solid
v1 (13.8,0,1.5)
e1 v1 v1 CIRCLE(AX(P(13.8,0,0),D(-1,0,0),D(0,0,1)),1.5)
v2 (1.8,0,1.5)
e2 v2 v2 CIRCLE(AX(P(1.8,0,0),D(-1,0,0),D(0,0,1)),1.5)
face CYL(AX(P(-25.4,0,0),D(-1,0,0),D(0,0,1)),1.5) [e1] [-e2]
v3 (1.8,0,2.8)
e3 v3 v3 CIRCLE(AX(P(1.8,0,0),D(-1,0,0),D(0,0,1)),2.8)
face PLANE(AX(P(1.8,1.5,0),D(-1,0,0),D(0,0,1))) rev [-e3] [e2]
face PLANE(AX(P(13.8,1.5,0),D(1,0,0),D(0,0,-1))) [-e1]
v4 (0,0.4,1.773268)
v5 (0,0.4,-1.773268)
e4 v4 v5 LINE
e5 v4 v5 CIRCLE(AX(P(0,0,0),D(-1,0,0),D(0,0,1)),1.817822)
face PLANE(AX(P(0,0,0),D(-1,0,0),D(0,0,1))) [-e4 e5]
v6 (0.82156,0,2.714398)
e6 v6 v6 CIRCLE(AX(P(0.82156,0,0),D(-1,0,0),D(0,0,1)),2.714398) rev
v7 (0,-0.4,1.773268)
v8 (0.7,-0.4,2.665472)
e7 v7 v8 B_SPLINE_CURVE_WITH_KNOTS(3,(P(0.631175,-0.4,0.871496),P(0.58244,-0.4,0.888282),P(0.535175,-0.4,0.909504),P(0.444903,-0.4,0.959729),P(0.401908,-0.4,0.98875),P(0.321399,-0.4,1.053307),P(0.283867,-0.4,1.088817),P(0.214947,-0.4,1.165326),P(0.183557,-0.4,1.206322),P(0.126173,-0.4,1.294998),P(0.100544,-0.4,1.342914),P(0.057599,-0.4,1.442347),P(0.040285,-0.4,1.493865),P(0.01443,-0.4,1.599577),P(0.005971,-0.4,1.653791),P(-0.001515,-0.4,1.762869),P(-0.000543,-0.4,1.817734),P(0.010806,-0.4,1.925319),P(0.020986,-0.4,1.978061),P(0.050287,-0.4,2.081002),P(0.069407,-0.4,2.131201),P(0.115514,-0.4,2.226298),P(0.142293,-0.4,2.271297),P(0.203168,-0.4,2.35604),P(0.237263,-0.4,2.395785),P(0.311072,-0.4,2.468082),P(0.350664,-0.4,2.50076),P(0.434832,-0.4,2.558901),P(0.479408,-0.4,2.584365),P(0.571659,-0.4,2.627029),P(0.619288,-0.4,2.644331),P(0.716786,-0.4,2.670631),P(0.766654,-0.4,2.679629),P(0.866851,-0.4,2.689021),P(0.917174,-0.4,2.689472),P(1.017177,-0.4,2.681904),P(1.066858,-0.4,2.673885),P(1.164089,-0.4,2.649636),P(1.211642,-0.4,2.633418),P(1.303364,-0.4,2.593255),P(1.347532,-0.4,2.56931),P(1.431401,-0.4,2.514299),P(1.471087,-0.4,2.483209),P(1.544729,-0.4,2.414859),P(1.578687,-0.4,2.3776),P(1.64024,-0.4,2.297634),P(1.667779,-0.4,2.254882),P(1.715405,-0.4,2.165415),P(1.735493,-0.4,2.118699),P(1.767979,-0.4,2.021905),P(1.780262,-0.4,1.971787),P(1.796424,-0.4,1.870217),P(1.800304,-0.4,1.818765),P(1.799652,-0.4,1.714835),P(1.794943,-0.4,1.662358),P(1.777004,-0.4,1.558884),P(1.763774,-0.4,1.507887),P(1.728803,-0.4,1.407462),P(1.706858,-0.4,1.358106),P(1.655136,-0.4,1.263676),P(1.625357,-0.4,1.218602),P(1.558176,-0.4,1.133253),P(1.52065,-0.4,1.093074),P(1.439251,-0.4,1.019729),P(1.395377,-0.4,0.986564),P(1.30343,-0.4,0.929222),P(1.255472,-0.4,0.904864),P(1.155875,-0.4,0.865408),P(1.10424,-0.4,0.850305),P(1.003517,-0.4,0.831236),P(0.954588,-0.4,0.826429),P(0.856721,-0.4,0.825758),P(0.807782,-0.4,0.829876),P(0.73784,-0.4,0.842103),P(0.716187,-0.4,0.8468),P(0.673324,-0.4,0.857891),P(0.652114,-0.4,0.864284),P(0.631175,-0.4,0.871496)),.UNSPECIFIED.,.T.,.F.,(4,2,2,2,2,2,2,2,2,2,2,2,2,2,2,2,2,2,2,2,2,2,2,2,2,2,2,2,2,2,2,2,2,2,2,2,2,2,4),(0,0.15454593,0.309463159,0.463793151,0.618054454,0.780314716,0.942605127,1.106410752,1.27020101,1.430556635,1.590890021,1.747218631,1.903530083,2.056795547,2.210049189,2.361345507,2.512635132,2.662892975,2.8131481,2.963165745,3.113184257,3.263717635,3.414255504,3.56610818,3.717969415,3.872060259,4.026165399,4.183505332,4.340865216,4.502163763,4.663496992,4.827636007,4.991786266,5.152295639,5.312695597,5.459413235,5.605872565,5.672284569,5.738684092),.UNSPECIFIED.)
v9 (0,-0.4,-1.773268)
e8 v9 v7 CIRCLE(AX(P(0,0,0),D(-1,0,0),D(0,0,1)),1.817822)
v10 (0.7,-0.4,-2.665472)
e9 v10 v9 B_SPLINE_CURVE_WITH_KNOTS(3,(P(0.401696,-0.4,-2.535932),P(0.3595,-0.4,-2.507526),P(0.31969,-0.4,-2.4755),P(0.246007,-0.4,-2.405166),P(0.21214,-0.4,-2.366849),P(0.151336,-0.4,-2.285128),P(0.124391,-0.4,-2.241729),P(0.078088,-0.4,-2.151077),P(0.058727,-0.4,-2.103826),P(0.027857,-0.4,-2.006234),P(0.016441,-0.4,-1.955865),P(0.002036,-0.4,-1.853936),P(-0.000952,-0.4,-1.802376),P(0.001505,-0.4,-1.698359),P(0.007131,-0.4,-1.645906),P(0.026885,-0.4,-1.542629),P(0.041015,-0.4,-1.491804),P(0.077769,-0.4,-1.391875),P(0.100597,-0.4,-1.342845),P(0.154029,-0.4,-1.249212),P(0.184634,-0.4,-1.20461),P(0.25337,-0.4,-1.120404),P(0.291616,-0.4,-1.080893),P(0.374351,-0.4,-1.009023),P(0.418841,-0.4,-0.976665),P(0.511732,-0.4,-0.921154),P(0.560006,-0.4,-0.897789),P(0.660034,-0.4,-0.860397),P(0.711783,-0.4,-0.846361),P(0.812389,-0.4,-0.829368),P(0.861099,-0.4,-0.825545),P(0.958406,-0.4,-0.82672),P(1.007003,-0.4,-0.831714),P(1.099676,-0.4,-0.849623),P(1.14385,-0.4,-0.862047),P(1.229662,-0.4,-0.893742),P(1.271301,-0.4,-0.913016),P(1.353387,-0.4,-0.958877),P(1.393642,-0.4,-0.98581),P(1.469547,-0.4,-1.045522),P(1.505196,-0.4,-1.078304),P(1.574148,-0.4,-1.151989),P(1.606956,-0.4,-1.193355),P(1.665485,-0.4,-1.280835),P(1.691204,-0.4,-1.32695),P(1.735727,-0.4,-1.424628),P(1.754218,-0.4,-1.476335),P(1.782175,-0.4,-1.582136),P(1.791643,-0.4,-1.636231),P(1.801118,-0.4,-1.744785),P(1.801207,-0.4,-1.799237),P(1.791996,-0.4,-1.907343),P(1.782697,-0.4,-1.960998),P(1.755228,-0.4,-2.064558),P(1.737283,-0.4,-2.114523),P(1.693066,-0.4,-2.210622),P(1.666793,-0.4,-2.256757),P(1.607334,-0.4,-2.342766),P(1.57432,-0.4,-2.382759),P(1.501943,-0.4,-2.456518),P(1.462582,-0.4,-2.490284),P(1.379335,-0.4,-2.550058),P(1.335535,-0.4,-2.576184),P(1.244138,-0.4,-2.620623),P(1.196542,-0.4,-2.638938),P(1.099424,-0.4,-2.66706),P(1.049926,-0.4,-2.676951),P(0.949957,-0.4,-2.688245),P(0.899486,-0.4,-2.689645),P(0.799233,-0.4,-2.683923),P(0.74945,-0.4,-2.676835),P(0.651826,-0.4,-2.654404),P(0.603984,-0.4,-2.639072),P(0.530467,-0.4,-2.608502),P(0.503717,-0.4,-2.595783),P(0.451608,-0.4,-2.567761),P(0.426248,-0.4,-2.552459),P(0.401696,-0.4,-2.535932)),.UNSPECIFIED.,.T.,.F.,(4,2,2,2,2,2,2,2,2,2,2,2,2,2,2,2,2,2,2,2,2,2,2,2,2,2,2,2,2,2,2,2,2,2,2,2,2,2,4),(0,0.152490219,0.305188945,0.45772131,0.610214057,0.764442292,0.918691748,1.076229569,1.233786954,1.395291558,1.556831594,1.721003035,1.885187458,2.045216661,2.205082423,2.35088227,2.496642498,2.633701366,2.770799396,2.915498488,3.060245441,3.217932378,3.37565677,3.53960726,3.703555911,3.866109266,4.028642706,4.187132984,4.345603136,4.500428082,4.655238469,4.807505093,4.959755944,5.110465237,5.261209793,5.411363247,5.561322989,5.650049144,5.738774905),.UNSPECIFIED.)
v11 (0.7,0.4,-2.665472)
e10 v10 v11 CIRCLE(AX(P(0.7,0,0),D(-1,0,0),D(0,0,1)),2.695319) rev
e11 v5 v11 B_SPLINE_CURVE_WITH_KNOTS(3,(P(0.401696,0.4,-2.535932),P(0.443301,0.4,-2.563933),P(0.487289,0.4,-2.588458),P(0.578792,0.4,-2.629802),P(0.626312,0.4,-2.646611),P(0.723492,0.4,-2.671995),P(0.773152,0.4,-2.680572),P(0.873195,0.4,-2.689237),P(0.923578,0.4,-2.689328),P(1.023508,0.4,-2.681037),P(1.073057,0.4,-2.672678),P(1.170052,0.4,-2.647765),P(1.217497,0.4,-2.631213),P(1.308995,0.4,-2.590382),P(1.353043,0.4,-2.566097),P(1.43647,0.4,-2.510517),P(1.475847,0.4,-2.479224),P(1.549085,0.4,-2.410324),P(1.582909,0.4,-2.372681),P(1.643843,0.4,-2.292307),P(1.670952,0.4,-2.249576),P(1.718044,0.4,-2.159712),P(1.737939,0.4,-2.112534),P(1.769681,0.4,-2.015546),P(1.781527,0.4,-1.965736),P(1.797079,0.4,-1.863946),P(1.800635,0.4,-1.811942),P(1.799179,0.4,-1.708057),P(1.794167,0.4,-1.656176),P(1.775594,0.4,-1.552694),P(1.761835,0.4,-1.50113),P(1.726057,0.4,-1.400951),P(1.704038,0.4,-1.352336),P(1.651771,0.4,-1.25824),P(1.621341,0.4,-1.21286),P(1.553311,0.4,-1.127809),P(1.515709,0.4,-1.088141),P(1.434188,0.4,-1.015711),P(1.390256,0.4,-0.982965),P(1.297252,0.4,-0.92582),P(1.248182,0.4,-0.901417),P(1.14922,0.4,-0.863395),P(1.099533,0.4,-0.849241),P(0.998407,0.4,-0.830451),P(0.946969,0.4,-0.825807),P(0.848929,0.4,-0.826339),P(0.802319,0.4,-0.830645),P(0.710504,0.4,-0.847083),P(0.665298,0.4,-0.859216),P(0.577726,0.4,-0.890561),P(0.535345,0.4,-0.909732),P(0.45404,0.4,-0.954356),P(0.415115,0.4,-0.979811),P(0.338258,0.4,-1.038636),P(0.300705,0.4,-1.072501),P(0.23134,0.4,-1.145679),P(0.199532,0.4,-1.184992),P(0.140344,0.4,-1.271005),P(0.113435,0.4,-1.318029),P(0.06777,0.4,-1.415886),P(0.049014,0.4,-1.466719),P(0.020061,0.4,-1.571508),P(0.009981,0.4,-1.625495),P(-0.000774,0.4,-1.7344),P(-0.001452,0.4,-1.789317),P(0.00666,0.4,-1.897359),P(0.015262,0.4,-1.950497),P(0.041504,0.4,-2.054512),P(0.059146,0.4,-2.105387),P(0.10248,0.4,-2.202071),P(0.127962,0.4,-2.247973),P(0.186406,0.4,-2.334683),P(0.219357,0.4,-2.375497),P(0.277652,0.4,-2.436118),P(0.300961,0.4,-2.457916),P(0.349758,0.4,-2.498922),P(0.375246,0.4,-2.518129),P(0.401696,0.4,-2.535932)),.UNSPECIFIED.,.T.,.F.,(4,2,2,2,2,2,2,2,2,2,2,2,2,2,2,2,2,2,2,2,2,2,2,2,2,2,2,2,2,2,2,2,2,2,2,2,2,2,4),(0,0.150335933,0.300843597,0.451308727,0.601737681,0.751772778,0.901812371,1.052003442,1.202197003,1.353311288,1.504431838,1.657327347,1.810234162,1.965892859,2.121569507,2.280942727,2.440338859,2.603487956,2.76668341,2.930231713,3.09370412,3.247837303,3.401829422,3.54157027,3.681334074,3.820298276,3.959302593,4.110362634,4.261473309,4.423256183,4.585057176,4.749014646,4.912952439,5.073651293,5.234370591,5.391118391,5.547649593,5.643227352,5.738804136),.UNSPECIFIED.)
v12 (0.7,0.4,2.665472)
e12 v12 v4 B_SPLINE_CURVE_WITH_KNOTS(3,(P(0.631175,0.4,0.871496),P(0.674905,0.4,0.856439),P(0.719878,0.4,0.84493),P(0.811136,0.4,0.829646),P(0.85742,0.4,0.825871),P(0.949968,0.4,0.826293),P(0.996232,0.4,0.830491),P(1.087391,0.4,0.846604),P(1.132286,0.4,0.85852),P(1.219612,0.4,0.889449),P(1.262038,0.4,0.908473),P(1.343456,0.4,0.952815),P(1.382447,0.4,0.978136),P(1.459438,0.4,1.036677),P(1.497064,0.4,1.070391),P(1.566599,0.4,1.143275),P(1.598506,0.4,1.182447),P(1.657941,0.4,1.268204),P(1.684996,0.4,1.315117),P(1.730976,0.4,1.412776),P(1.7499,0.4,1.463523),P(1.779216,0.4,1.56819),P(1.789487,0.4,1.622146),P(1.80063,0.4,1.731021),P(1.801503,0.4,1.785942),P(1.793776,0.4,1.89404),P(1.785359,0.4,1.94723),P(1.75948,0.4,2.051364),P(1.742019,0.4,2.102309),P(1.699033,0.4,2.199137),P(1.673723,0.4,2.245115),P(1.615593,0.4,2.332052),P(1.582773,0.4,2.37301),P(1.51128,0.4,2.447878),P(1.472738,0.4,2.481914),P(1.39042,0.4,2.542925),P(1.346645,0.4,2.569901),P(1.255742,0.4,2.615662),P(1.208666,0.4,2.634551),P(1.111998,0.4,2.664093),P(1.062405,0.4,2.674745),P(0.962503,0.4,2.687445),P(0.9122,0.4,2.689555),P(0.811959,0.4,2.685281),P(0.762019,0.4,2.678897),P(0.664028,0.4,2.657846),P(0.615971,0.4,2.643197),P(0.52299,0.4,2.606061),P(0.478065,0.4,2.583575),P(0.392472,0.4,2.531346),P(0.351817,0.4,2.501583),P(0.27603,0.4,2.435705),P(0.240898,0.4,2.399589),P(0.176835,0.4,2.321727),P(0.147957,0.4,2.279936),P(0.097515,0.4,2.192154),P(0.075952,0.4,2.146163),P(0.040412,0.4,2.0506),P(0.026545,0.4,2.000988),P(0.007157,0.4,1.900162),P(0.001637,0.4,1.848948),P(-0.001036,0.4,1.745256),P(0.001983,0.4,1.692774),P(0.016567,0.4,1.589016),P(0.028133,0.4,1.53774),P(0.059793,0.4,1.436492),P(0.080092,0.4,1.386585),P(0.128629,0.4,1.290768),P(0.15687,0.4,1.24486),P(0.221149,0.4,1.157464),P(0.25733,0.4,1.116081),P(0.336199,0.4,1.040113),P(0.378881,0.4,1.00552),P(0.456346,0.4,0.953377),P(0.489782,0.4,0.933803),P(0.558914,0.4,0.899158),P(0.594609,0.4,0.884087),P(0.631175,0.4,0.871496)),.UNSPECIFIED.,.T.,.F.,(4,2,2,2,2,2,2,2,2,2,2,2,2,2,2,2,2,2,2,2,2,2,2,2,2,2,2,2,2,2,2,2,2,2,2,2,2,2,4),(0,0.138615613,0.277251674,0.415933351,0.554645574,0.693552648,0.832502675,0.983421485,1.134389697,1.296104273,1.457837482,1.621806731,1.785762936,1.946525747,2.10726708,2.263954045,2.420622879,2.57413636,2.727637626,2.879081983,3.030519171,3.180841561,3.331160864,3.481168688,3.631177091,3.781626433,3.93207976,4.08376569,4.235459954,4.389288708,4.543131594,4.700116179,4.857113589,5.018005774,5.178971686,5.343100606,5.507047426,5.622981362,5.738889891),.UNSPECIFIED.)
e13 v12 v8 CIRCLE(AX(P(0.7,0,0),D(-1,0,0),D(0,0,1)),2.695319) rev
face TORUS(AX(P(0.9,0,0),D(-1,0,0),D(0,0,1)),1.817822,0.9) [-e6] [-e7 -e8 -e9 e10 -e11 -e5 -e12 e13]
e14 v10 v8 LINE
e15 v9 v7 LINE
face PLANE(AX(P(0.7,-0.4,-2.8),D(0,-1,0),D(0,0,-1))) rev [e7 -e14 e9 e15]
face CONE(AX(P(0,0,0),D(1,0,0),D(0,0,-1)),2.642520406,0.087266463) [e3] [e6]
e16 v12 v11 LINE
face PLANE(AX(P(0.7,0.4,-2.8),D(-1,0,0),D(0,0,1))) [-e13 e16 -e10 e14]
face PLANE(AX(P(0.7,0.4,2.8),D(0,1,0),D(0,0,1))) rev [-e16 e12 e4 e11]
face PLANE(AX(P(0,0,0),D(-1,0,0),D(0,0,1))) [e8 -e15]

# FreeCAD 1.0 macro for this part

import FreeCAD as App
import Part
import Sketcher

V = App.Vector
Q = App.Units.Quantity


def edges_at(feature, points):
    """Names of the edges that pass closest to the given points."""
    edges = feature.Shape.Edges
    near = lambda p: min(range(len(edges)), key=lambda i: edges[i].distToShape(Part.Vertex(*p))[0])
    return sorted({f"Edge{near(p) + 1}" for p in points})

doc = App.newDocument("Part")
body = doc.addObject("PartDesign::Body", "Body")

sketch1 = body.newObject("Sketcher::SketchObject", "Sketch")
sketch1.AttachmentSupport = (doc.getObject("XY_Plane"), [""])
sketch1.MapMode = "FlatFace"
sketch1.addGeometry([
    Part.LineSegment(V(1.8, 1.5, 0), V(1.8, 2.8, 0)),
    Part.LineSegment(V(1.8, 2.8, 0), V(0, 2.6, 0)),
    Part.LineSegment(V(0, 2.6, 0), V(0, 0, 0)),
    Part.LineSegment(V(0, 0, 0), V(13.8, 0, 0)),
    Part.LineSegment(V(13.8, 0, 0), V(13.8, 1.5, 0)),
    Part.LineSegment(V(13.8, 1.5, 0), V(1.8, 1.5, 0)),
], False)
sketch1.addConstraint([
    Sketcher.Constraint("Coincident", 0, 2, 1, 1),
    Sketcher.Constraint("Coincident", 1, 2, 2, 1),
    Sketcher.Constraint("Coincident", 2, 2, 3, 1),
    Sketcher.Constraint("Coincident", 3, 2, 4, 1),
    Sketcher.Constraint("Coincident", 4, 2, 5, 1),
    Sketcher.Constraint("Coincident", 5, 2, 0, 1),
    Sketcher.Constraint("Vertical", 0),
    Sketcher.Constraint("Vertical", 2),
    Sketcher.Constraint("Horizontal", 3),
    Sketcher.Constraint("Vertical", 4),
    Sketcher.Constraint("Horizontal", 5),
    Sketcher.Constraint("Coincident", 2, 2, -1, 1),
    Sketcher.Constraint("DistanceX", 5, 2, 5, 1, Q("12 mm")),
    Sketcher.Constraint("Angle", 1, Q("-175 deg")),
    Sketcher.Constraint("DistanceX", 3, 1, 3, 2, Q("13.8 mm")),
    Sketcher.Constraint("DistanceY", 0, 1, 0, 2, Q("1.3 mm")),
    Sketcher.Constraint("DistanceY", 4, 1, 4, 2, Q("1.5 mm")),
])
revolution = body.newObject("PartDesign::Revolution", "Revolution")
revolution.Profile = sketch1
revolution.ReferenceAxis = (sketch1, ["H_Axis"])
revolution.Angle = 360
doc.recompute()

fillet = body.newObject("PartDesign::Fillet", "Fillet")
fillet.Base = (revolution, edges_at(revolution, [(0, 0, -2.643)]))
fillet.Radius = 0.9

sketch2 = body.newObject("Sketcher::SketchObject", "Sketch001")
sketch2.AttachmentSupport = (doc.getObject("YZ_Plane"), [""])
sketch2.MapMode = "FlatFace"
sketch2.addGeometry([
    Part.LineSegment(V(0.4, 2.8, 0), V(-0.4, 2.8, 0)),
    Part.LineSegment(V(-0.4, 2.8, 0), V(-0.4, -2.8, 0)),
    Part.LineSegment(V(-0.4, -2.8, 0), V(0.4, -2.8, 0)),
    Part.LineSegment(V(0.4, -2.8, 0), V(0.4, 2.8, 0)),
], False)
sketch2.addConstraint([
    Sketcher.Constraint("Coincident", 0, 2, 1, 1),
    Sketcher.Constraint("Coincident", 1, 2, 2, 1),
    Sketcher.Constraint("Coincident", 2, 2, 3, 1),
    Sketcher.Constraint("Coincident", 3, 2, 0, 1),
    Sketcher.Constraint("Horizontal", 0),
    Sketcher.Constraint("Vertical", 1),
    Sketcher.Constraint("Horizontal", 2),
    Sketcher.Constraint("Vertical", 3),
    Sketcher.Constraint("Symmetric", 0, 2, 2, 2, -1, 1),
    Sketcher.Constraint("DistanceX", 0, 2, 0, 1, Q("0.8 mm")),
    Sketcher.Constraint("DistanceY", 1, 2, 1, 1, Q("5.6 mm")),
])
pocket1 = body.newObject("PartDesign::Pocket", "Pocket")
pocket1.Profile = sketch2
pocket1.Length = 0.7
pocket1.Reversed = True

doc.recompute()
